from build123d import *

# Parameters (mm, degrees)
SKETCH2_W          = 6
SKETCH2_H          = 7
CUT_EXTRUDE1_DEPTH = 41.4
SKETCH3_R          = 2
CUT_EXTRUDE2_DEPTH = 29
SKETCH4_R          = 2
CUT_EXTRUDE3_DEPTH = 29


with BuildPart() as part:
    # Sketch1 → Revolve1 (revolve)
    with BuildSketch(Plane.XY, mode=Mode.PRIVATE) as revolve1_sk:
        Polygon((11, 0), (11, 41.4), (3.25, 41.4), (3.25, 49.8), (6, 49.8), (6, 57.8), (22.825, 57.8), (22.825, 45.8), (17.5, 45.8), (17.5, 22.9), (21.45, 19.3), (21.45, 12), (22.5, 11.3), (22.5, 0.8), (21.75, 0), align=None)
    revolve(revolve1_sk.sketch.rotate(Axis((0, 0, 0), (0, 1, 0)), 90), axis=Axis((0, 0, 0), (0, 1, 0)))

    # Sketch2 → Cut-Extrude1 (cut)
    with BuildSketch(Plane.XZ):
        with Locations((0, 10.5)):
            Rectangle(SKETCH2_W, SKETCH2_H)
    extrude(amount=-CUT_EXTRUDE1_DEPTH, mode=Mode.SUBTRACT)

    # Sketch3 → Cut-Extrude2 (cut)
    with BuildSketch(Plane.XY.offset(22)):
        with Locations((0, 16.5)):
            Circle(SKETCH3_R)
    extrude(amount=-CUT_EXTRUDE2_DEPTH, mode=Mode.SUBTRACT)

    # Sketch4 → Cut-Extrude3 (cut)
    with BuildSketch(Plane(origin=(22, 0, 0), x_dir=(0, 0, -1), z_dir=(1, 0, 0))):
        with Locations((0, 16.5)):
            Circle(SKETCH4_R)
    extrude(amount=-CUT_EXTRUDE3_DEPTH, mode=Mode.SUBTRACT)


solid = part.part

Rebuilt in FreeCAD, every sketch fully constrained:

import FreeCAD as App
import Part
import Sketcher
Q = App.Units.Quantity


def add_polygon(sketch, points):
    """Adds a closed chain of lines whose ends are joined by coincident constraints."""
    first, n = sketch.GeometryCount, len(points)
    for a, b in zip(points, points[1:] + points[:1]):
        sketch.addGeometry(Part.LineSegment(App.Vector(*a, 0), App.Vector(*b, 0)), False)
    for i in range(n):
        sketch.addConstraint(Sketcher.Constraint("Coincident", first + i, 2, first + (i + 1) % n, 1))

doc = App.newDocument("Part")
body = doc.addObject("PartDesign::Body", "Body")

sketch1 = doc.addObject("Sketcher::SketchObject", "Sketch")
body.addObject(sketch1)
sketch1.AttachmentSupport = (doc.XY_Plane, [""])
sketch1.MapMode = "FlatFace"
add_polygon(sketch1, [(11, 41.4), (11, 0), (21.75, 0), (22.5, 0.8), (22.5, 11.3), (21.45, 12), (21.45, 19.3), (17.5, 22.9), (17.5, 45.8), (22.825, 45.8), (22.825, 57.8), (6, 57.8), (6, 49.8), (3.25, 49.8), (3.25, 41.4)])
sketch1.addConstraint(Sketcher.Constraint("Vertical", 0))
sketch1.addConstraint(Sketcher.Constraint("Horizontal", 1))
sketch1.addConstraint(Sketcher.Constraint("Vertical", 3))
sketch1.addConstraint(Sketcher.Constraint("Vertical", 5))
sketch1.addConstraint(Sketcher.Constraint("Vertical", 7))
sketch1.addConstraint(Sketcher.Constraint("Horizontal", 8))
sketch1.addConstraint(Sketcher.Constraint("Vertical", 9))
sketch1.addConstraint(Sketcher.Constraint("Horizontal", 10))
sketch1.addConstraint(Sketcher.Constraint("Vertical", 11))
sketch1.addConstraint(Sketcher.Constraint("Horizontal", 12))
sketch1.addConstraint(Sketcher.Constraint("Vertical", 13))
sketch1.addConstraint(Sketcher.Constraint("Horizontal", 14))
sketch1.addConstraint(Sketcher.Constraint("PointOnObject", 0, 2, -1))
sketch1.addConstraint(Sketcher.Constraint("DistanceY", 9, 1, 9, 2, Q("12 mm")))
sketch1.addConstraint(Sketcher.Constraint("DistanceY", 11, 2, 11, 1, Q("8 mm")))
sketch1.addConstraint(Sketcher.Constraint("DistanceY", 0, 2, 0, 1, Q("41.4 mm")))
sketch1.addConstraint(Sketcher.Constraint("DistanceY", 3, 1, 3, 2, Q("10.5 mm")))
sketch1.addConstraint(Sketcher.Constraint("DistanceY", 5, 1, 5, 2, Q("7.3 mm")))
sketch1.addConstraint(Sketcher.Constraint("DistanceY", 7, 1, 7, 2, Q("22.9 mm")))
sketch1.addConstraint(Sketcher.Constraint("DistanceY", 13, 2, 13, 1, Q("8.4 mm")))
sketch1.addConstraint(Sketcher.Constraint("DistanceX", -1, 1, 0, 2, Q("11 mm")))
sketch1.addConstraint(Sketcher.Constraint("DistanceY", -1, 1, 4, 2, Q("12 mm")))
sketch1.addConstraint(Sketcher.Constraint("DistanceX", -1, 1, 10, 2, Q("6 mm")))
sketch1.addConstraint(Sketcher.Constraint("DistanceY", 3, 2, 5, 2, Q("8 mm")))
sketch1.addConstraint(Sketcher.Constraint("DistanceX", 6, 2, 3, 2, Q("5 mm")))
sketch1.addConstraint(Sketcher.Constraint("DistanceX", 1, 1, 1, 2, Q("10.75 mm")))
sketch1.addConstraint(Sketcher.Constraint("DistanceX", 12, 2, 12, 1, Q("2.75 mm")))
sketch1.addConstraint(Sketcher.Constraint("DistanceX", -1, 1, 2, 2, Q("22.5 mm")))
sketch1.addConstraint(Sketcher.Constraint("DistanceX", 4, 2, 1, 2, Q("0.3 mm")))
sketch1.addConstraint(Sketcher.Constraint("DistanceX", 8, 1, 8, 2, Q("5.325 mm")))
revolution = doc.addObject("PartDesign::Revolution", "Revolution")
body.addObject(revolution)
revolution.Profile = sketch1
revolution.ReferenceAxis = (sketch1, ["V_Axis"])
revolution.Angle = 360

sketch2 = doc.addObject("Sketcher::SketchObject", "Sketch001")
body.addObject(sketch2)
sketch2.AttachmentSupport = (doc.XZ_Plane, [""])
sketch2.MapMode = "FlatFace"
add_polygon(sketch2, [(-3, 14), (-3, 7), (3, 7), (3, 14)])
sketch2.addConstraint(Sketcher.Constraint("Vertical", 0))
sketch2.addConstraint(Sketcher.Constraint("Horizontal", 1))
sketch2.addConstraint(Sketcher.Constraint("Vertical", 2))
sketch2.addConstraint(Sketcher.Constraint("Horizontal", 3))
sketch2.addConstraint(Sketcher.Constraint("DistanceX", 1, 1, 1, 2, Q("6 mm")))
sketch2.addConstraint(Sketcher.Constraint("DistanceY", 0, 2, 0, 1, Q("7 mm")))
sketch2.addConstraint(Sketcher.Constraint("DistanceX", 0, 2, -1, 1, Q("3 mm")))
sketch2.addConstraint(Sketcher.Constraint("DistanceY", -1, 1, 0, 2, Q("7 mm")))
pocket1 = doc.addObject("PartDesign::Pocket", "Pocket")
body.addObject(pocket1)
pocket1.Profile = sketch2
pocket1.Length = 41.4

sketch3 = doc.addObject("Sketcher::SketchObject", "Sketch002")
body.addObject(sketch3)
sketch3.AttachmentSupport = (doc.XY_Plane, [""])
sketch3.MapMode = "FlatFace"
sketch3.AttachmentOffset = App.Placement(App.Vector(0, 0, 22), App.Rotation())
sketch3.addGeometry(Part.Circle(App.Vector(0, 16.5, 0), App.Vector(0, 0, 1), 2), False)
sketch3.addConstraint(Sketcher.Constraint("PointOnObject", 0, 3, -2))
sketch3.addConstraint(Sketcher.Constraint("Diameter", 0, Q("4 mm")))
sketch3.addConstraint(Sketcher.Constraint("DistanceY", -1, 1, 0, 3, Q("16.5 mm")))
pocket2 = doc.addObject("PartDesign::Pocket", "Pocket001")
body.addObject(pocket2)
pocket2.Profile = sketch3
pocket2.Length = 29

sketch4 = doc.addObject("Sketcher::SketchObject", "Sketch003")
body.addObject(sketch4)
sketch4.AttachmentSupport = (doc.YZ_Plane, [""])
sketch4.MapMode = "FlatFace"
sketch4.AttachmentOffset = App.Placement(App.Vector(0, 0, 22), App.Rotation())
sketch4.addGeometry(Part.Circle(App.Vector(16.5, 0, 0), App.Vector(0, 0, 1), 2), False)
sketch4.addConstraint(Sketcher.Constraint("PointOnObject", 0, 3, -1))
sketch4.addConstraint(Sketcher.Constraint("Diameter", 0, Q("4 mm")))
sketch4.addConstraint(Sketcher.Constraint("DistanceX", -1, 1, 0, 3, Q("16.5 mm")))
pocket3 = doc.addObject("PartDesign::Pocket", "Pocket002")
body.addObject(pocket3)
pocket3.Profile = sketch4
pocket3.Length = 29

doc.recompute()
